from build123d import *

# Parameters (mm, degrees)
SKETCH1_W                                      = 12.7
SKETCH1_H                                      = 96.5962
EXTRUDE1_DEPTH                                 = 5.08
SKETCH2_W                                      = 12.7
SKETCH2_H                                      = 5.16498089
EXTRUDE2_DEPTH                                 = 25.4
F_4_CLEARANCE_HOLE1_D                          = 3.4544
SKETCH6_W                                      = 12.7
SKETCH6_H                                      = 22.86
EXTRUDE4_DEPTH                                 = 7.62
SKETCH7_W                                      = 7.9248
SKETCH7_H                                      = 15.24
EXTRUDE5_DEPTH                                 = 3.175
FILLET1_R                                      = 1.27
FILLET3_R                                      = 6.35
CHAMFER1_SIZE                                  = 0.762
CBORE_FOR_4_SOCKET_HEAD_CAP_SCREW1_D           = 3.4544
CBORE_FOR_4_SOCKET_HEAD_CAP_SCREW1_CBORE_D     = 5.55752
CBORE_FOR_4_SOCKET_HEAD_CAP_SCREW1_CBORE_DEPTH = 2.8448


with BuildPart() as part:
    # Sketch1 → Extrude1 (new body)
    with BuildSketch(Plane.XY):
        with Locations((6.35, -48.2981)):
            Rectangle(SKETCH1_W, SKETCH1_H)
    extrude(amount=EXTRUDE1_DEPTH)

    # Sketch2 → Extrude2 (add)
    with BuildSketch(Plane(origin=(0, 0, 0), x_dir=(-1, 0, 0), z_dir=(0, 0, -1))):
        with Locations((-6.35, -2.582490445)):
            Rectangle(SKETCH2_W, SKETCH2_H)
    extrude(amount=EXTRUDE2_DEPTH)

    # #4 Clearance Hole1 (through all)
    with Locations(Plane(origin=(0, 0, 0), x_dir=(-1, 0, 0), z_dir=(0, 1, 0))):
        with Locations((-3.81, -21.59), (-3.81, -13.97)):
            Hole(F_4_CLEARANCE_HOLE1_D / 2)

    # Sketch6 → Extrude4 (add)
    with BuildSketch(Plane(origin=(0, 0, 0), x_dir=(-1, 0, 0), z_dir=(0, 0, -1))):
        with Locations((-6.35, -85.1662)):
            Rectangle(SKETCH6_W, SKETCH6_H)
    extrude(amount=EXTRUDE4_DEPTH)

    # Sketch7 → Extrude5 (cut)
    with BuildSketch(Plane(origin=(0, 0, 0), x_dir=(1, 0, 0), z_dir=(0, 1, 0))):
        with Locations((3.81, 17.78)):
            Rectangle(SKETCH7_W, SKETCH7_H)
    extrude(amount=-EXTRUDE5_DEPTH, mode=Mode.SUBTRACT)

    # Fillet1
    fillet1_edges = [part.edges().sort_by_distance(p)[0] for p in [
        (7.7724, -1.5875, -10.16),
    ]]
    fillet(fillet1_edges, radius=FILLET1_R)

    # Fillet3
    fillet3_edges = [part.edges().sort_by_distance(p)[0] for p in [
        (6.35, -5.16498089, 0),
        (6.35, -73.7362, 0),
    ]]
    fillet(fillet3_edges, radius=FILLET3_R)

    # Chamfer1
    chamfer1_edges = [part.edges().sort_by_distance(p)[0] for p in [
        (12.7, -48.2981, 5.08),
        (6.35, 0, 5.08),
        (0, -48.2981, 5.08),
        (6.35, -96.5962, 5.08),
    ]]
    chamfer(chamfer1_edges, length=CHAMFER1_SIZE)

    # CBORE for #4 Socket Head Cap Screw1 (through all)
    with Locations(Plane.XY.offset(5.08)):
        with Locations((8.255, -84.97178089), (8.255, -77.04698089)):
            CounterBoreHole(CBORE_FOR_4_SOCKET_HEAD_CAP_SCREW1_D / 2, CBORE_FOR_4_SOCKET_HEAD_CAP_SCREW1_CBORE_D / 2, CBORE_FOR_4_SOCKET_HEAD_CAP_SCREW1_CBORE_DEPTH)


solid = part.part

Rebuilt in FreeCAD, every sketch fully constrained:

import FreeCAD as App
import Part
import Sketcher
from FreeCAD import Vector
Q = App.Units.Quantity


def edges_at(feature, points):
    """Names of the edges that pass closest to the given points."""
    edges = feature.Shape.Edges
    near = lambda p: min(range(len(edges)), key=lambda i: edges[i].distToShape(Part.Vertex(*p))[0])
    return sorted({f"Edge{near(p) + 1}" for p in points})

doc = App.newDocument("Part")
body = doc.addObject("PartDesign::Body", "Body")

# Sketch on XY plane
sketch1 = body.newObject("Sketcher::SketchObject", "Sketch")
sketch1.AttachmentSupport = (doc.getObject("XY_Plane"), [""])
sketch1.MapMode = "FlatFace"
sketch1.addGeometry(Part.LineSegment(Vector(0, 0, 0), Vector(0, -97, 0)), False)
sketch1.addGeometry(Part.LineSegment(Vector(0, -97, 0), Vector(13, -97, 0)), False)
sketch1.addGeometry(Part.LineSegment(Vector(13, -97, 0), Vector(13, 0, 0)), False)
sketch1.addGeometry(Part.LineSegment(Vector(13, 0, 0), Vector(0, 0, 0)), False)
sketch1.addConstraint(Sketcher.Constraint("Coincident", 0, 2, 1, 1))
sketch1.addConstraint(Sketcher.Constraint("Coincident", 1, 2, 2, 1))
sketch1.addConstraint(Sketcher.Constraint("Coincident", 2, 2, 3, 1))
sketch1.addConstraint(Sketcher.Constraint("Coincident", 3, 2, 0, 1))
sketch1.addConstraint(Sketcher.Constraint("Vertical", 0))
sketch1.addConstraint(Sketcher.Constraint("Horizontal", 1))
sketch1.addConstraint(Sketcher.Constraint("Vertical", 2))
sketch1.addConstraint(Sketcher.Constraint("Horizontal", 3))
sketch1.addConstraint(Sketcher.Constraint("Coincident", 3, 2, -1, 1))
sketch1.addConstraint(Sketcher.Constraint("DistanceX", 1, 1, 1, 2, Q("0.5 in")))
sketch1.addConstraint(Sketcher.Constraint("DistanceY", 0, 2, 0, 1, Q("3.803 in")))
pad1 = body.newObject("PartDesign::Pad", "Pad")
pad1.Profile = sketch1
pad1.Length = Q("0.2 in")

# Sketch on XY plane
sketch2 = body.newObject("Sketcher::SketchObject", "Sketch001")
sketch2.AttachmentSupport = (doc.getObject("XY_Plane"), [""])
sketch2.MapMode = "FlatFace"
sketch2.addGeometry(Part.LineSegment(Vector(13, 0, 0), Vector(13, -5, 0)), False)
sketch2.addGeometry(Part.LineSegment(Vector(13, -5, 0), Vector(0, -5, 0)), False)
sketch2.addGeometry(Part.LineSegment(Vector(0, -5, 0), Vector(0, 0, 0)), False)
sketch2.addGeometry(Part.LineSegment(Vector(0, 0, 0), Vector(13, 0, 0)), False)
sketch2.addConstraint(Sketcher.Constraint("Coincident", 0, 2, 1, 1))
sketch2.addConstraint(Sketcher.Constraint("Coincident", 1, 2, 2, 1))
sketch2.addConstraint(Sketcher.Constraint("Coincident", 2, 2, 3, 1))
sketch2.addConstraint(Sketcher.Constraint("Coincident", 3, 2, 0, 1))
sketch2.addConstraint(Sketcher.Constraint("Vertical", 0))
sketch2.addConstraint(Sketcher.Constraint("Horizontal", 1))
sketch2.addConstraint(Sketcher.Constraint("Vertical", 2))
sketch2.addConstraint(Sketcher.Constraint("Horizontal", 3))
sketch2.addConstraint(Sketcher.Constraint("Coincident", 2, 2, -1, 1))
sketch2.addConstraint(Sketcher.Constraint("DistanceX", 1, 2, 1, 1, Q("0.5 in")))
sketch2.addConstraint(Sketcher.Constraint("DistanceY", 0, 2, 0, 1, Q("5.164981 mm")))
pad2 = body.newObject("PartDesign::Pad", "Pad001")
pad2.Profile = sketch2
pad2.Length = Q("1 in")
pad2.Reversed = True

# Sketch on XZ plane
sketch3 = body.newObject("Sketcher::SketchObject", "Sketch002")
sketch3.AttachmentSupport = (doc.getObject("XZ_Plane"), [""])
sketch3.MapMode = "FlatFace"
sketch3.addGeometry(Part.Circle(Vector(3.8, -21.6, 0), Vector(0, 0, 1), 1.7), False)
sketch3.addGeometry(Part.Circle(Vector(3.8, -14, 0), Vector(0, 0, 1), 1.7), False)
sketch3.addConstraint(Sketcher.Constraint("Equal", 0, 1))
sketch3.addConstraint(Sketcher.Constraint("Vertical", 0, 3, 1, 3))
sketch3.addConstraint(Sketcher.Constraint("Diameter", 0, Q("0.136 in")))
sketch3.addConstraint(Sketcher.Constraint("DistanceY", 0, 3, 1, 3, Q("0.3 in")))
sketch3.addConstraint(Sketcher.Constraint("DistanceX", -1, 1, 0, 3, Q("0.15 in")))
sketch3.addConstraint(Sketcher.Constraint("DistanceY", 0, 3, -1, 1, Q("0.85 in")))
doc.recompute()
hole = body.newObject("PartDesign::Hole", "Hole")
hole.Profile = sketch3
hole.ThreadType = "None"
hole.Diameter = Q("0.136 in")
hole.DepthType = "ThroughAll"
hole.Reversed = True

# Sketch on XY plane
sketch4 = body.newObject("Sketcher::SketchObject", "Sketch003")
sketch4.AttachmentSupport = (doc.getObject("XY_Plane"), [""])
sketch4.MapMode = "FlatFace"
sketch4.addGeometry(Part.LineSegment(Vector(13, -74, 0), Vector(13, -97, 0)), False)
sketch4.addGeometry(Part.LineSegment(Vector(13, -97, 0), Vector(0, -97, 0)), False)
sketch4.addGeometry(Part.LineSegment(Vector(0, -97, 0), Vector(0, -74, 0)), False)
sketch4.addGeometry(Part.LineSegment(Vector(0, -74, 0), Vector(13, -74, 0)), False)
sketch4.addConstraint(Sketcher.Constraint("Coincident", 0, 2, 1, 1))
sketch4.addConstraint(Sketcher.Constraint("Coincident", 1, 2, 2, 1))
sketch4.addConstraint(Sketcher.Constraint("Coincident", 2, 2, 3, 1))
sketch4.addConstraint(Sketcher.Constraint("Coincident", 3, 2, 0, 1))
sketch4.addConstraint(Sketcher.Constraint("Vertical", 0))
sketch4.addConstraint(Sketcher.Constraint("Horizontal", 1))
sketch4.addConstraint(Sketcher.Constraint("Vertical", 2))
sketch4.addConstraint(Sketcher.Constraint("Horizontal", 3))
sketch4.addConstraint(Sketcher.Constraint("PointOnObject", 1, 2, -2))
sketch4.addConstraint(Sketcher.Constraint("DistanceX", 1, 2, 1, 1, Q("0.5 in")))
sketch4.addConstraint(Sketcher.Constraint("DistanceY", 0, 2, 0, 1, Q("0.9 in")))
sketch4.addConstraint(Sketcher.Constraint("DistanceY", 0, 2, -1, 1, Q("3.803 in")))
pad3 = body.newObject("PartDesign::Pad", "Pad002")
pad3.Profile = sketch4
pad3.Length = Q("0.3 in")
pad3.Reversed = True

# Sketch on XZ plane
sketch5 = body.newObject("Sketcher::SketchObject", "Sketch004")
sketch5.AttachmentSupport = (doc.getObject("XZ_Plane"), [""])
sketch5.MapMode = "FlatFace"
sketch5.addGeometry(Part.LineSegment(Vector(0, -25, 0), Vector(0, -10, 0)), False)
sketch5.addGeometry(Part.LineSegment(Vector(0, -10, 0), Vector(8, -10, 0)), False)
sketch5.addGeometry(Part.LineSegment(Vector(8, -10, 0), Vector(8, -25, 0)), False)
sketch5.addGeometry(Part.LineSegment(Vector(8, -25, 0), Vector(0, -25, 0)), False)
sketch5.addConstraint(Sketcher.Constraint("Coincident", 0, 2, 1, 1))
sketch5.addConstraint(Sketcher.Constraint("Coincident", 1, 2, 2, 1))
sketch5.addConstraint(Sketcher.Constraint("Coincident", 2, 2, 3, 1))
sketch5.addConstraint(Sketcher.Constraint("Coincident", 3, 2, 0, 1))
sketch5.addConstraint(Sketcher.Constraint("Vertical", 0))
sketch5.addConstraint(Sketcher.Constraint("Horizontal", 1))
sketch5.addConstraint(Sketcher.Constraint("Vertical", 2))
sketch5.addConstraint(Sketcher.Constraint("Horizontal", 3))
sketch5.addConstraint(Sketcher.Constraint("DistanceY", 0, 1, 0, 2, Q("0.6 in")))
sketch5.addConstraint(Sketcher.Constraint("DistanceY", 2, 2, -1, 1, Q("1 in")))
sketch5.addConstraint(Sketcher.Constraint("DistanceX", 1, 1, 1, 2, Q("0.312 in")))
sketch5.addConstraint(Sketcher.Constraint("DistanceX", 0, 2, -1, 1, Q("0.006 in")))
pocket1 = body.newObject("PartDesign::Pocket", "Pocket")
pocket1.Profile = sketch5
pocket1.Length = Q("0.125 in")
pocket1.Reversed = True
doc.recompute()

fillet = body.newObject("PartDesign::Fillet", "Fillet")
fillet.Base = (pocket1, edges_at(pocket1, [(7.772, -1.587, -10.16)]))
fillet.Radius = Q("0.05 in")
doc.recompute()

fillet2 = body.newObject("PartDesign::Fillet", "Fillet001")
fillet2.Base = (fillet, edges_at(fillet, [(6.35, -5.165, 0), (6.35, -73.736, 0)]))
fillet2.Radius = Q("0.25 in")
doc.recompute()

chamfer = body.newObject("PartDesign::Chamfer", "Chamfer")
chamfer.Base = (fillet2, edges_at(fillet2, [
    (12.7, -48.298, 5.08),
    (6.35, 0, 5.08),
    (0, -48.298, 5.08),
    (6.35, -96.596, 5.08),
]))
chamfer.Size = Q("0.03 in")

# Sketch on XY plane
sketch6 = body.newObject("Sketcher::SketchObject", "Sketch005")
sketch6.AttachmentSupport = (doc.getObject("XY_Plane"), [""])
sketch6.MapMode = "FlatFace"
sketch6.AttachmentOffset = App.Placement(Vector(0, 0, 0.2 * 25.4), App.Rotation())
sketch6.addGeometry(Part.Circle(Vector(8.3, -85, 0), Vector(0, 0, 1), 1.7), False)
sketch6.addGeometry(Part.Circle(Vector(8.3, -77, 0), Vector(0, 0, 1), 1.7), False)
sketch6.addConstraint(Sketcher.Constraint("Equal", 0, 1))
sketch6.addConstraint(Sketcher.Constraint("Vertical", 0, 3, 1, 3))
sketch6.addConstraint(Sketcher.Constraint("Diameter", 0, Q("0.136 in")))
sketch6.addConstraint(Sketcher.Constraint("DistanceX", -1, 1, 0, 3, Q("0.325 in")))
sketch6.addConstraint(Sketcher.Constraint("DistanceY", 0, 3, 1, 3, Q("0.312 in")))
sketch6.addConstraint(Sketcher.Constraint("DistanceY", 0, 3, -1, 1, Q("84.971781 mm")))
doc.recompute()
hole2 = body.newObject("PartDesign::Hole", "Hole001")
hole2.Profile = sketch6
hole2.ThreadType = "None"
hole2.Diameter = Q("0.136 in")
hole2.DepthType = "ThroughAll"
hole2.HoleCutType = "Counterbore"
hole2.HoleCutDiameter = Q("0.2188 in")
hole2.HoleCutDepth = Q("0.112 in")

doc.recompute()
